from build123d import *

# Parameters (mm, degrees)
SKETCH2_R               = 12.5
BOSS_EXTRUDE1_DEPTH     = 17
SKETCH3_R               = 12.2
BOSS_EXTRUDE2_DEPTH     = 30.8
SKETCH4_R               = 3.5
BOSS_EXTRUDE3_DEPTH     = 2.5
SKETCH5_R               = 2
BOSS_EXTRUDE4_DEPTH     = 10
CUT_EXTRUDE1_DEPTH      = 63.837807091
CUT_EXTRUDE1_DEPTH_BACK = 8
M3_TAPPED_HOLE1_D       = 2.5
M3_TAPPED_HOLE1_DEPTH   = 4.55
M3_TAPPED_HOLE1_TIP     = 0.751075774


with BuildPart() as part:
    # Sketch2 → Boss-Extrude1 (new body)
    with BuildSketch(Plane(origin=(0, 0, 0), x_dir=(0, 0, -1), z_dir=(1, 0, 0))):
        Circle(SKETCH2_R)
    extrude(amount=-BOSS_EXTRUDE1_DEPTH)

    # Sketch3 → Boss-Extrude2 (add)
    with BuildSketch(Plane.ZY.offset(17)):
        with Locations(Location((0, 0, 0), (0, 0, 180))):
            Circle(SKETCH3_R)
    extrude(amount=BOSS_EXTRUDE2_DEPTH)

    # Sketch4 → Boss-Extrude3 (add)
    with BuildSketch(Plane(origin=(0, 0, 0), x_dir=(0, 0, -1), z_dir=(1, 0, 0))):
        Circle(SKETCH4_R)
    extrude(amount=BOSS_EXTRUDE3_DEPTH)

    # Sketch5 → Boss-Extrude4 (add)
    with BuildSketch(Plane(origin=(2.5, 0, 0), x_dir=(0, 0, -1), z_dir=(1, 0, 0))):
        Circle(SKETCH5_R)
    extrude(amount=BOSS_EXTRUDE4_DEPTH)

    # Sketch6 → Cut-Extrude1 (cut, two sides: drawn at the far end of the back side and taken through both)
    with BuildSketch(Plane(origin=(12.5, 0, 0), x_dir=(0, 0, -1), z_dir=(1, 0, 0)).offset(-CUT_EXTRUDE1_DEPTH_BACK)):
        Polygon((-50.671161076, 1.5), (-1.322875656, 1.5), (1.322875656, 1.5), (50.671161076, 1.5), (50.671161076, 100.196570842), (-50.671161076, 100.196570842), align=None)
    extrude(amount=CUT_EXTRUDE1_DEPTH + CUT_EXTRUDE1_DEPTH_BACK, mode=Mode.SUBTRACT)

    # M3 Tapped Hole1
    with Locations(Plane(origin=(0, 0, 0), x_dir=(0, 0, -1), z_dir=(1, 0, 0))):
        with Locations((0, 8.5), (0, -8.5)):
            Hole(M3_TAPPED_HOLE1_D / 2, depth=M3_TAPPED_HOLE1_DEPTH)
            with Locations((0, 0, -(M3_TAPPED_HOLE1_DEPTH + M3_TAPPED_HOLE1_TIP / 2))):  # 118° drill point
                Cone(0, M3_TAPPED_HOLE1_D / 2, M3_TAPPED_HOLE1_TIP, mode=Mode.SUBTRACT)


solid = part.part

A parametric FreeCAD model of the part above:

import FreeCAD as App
import Part
import Sketcher

doc = App.newDocument("Part")
body = doc.addObject("PartDesign::Body", "Body")

sketch1 = body.newObject("Sketcher::SketchObject", "Sketch")
sketch1.AttachmentSupport = (doc.getObject("YZ_Plane"), [""])
sketch1.MapMode = "FlatFace"
sketch1.addGeometry(Part.Circle(App.Vector(0, 0, 0), App.Vector(0, 0, 1), 12.5), False)
sketch1.addConstraint([
    Sketcher.Constraint("Coincident", 0, 3, -1, 1),
    Sketcher.Constraint("Diameter", 0, 25.0),
])
pad1 = body.newObject("PartDesign::Pad", "Pad")
pad1.Profile = sketch1
pad1.Length = 17
pad1.Reversed = True

sketch2 = body.newObject("Sketcher::SketchObject", "Sketch001")
sketch2.AttachmentSupport = (doc.getObject("YZ_Plane"), [""])
sketch2.MapMode = "FlatFace"
sketch2.AttachmentOffset = App.Placement(App.Vector(0, 0, -17), App.Rotation())
sketch2.addGeometry(Part.Circle(App.Vector(0, 0, 0), App.Vector(0, 0, 1), 12.2), False)
sketch2.addConstraint([
    Sketcher.Constraint("Coincident", 0, 3, -1, 1),
    Sketcher.Constraint("Diameter", 0, 24.4),
])
pad2 = body.newObject("PartDesign::Pad", "Pad001")
pad2.Profile = sketch2
pad2.Length = 30.8
pad2.Reversed = True

sketch3 = body.newObject("Sketcher::SketchObject", "Sketch002")
sketch3.AttachmentSupport = (doc.getObject("YZ_Plane"), [""])
sketch3.MapMode = "FlatFace"
sketch3.addGeometry(Part.Circle(App.Vector(0, 0, 0), App.Vector(0, 0, 1), 3.5), False)
sketch3.addConstraint([
    Sketcher.Constraint("Coincident", 0, 3, -1, 1),
    Sketcher.Constraint("Diameter", 0, 7.0),
])
pad3 = body.newObject("PartDesign::Pad", "Pad002")
pad3.Profile = sketch3
pad3.Length = 2.5

sketch4 = body.newObject("Sketcher::SketchObject", "Sketch003")
sketch4.AttachmentSupport = (doc.getObject("YZ_Plane"), [""])
sketch4.MapMode = "FlatFace"
sketch4.AttachmentOffset = App.Placement(App.Vector(0, 0, 2.5), App.Rotation())
sketch4.addGeometry(Part.Circle(App.Vector(0, 0, 0), App.Vector(0, 0, 1), 2), False)
sketch4.addConstraint([
    Sketcher.Constraint("Coincident", 0, 3, -1, 1),
    Sketcher.Constraint("Diameter", 0, 4.0),
])
pad4 = body.newObject("PartDesign::Pad", "Pad003")
pad4.Profile = sketch4
pad4.Length = 10

sketch5 = body.newObject("Sketcher::SketchObject", "Sketch004")
sketch5.AttachmentSupport = (doc.getObject("YZ_Plane"), [""])
sketch5.MapMode = "FlatFace"
sketch5.AttachmentOffset = App.Placement(App.Vector(0, 0, 12.5), App.Rotation())
sketch5.addGeometry([
    Part.LineSegment(App.Vector(1.5, 50.671161, 0), App.Vector(1.5, -50.671161, 0)),
    Part.LineSegment(App.Vector(1.5, -50.671161, 0), App.Vector(100.196571, -50.671161, 0)),
    Part.LineSegment(App.Vector(100.196571, -50.671161, 0), App.Vector(100.196571, 50.671161, 0)),
    Part.LineSegment(App.Vector(100.196571, 50.671161, 0), App.Vector(1.5, 50.671161, 0)),
], False)
sketch5.addConstraint([
    Sketcher.Constraint("Coincident", 0, 2, 1, 1),
    Sketcher.Constraint("Coincident", 1, 2, 2, 1),
    Sketcher.Constraint("Coincident", 2, 2, 3, 1),
    Sketcher.Constraint("Coincident", 3, 2, 0, 1),
    Sketcher.Constraint("Vertical", 0),
    Sketcher.Constraint("Horizontal", 1),
    Sketcher.Constraint("Vertical", 2),
    Sketcher.Constraint("Horizontal", 3),
    Sketcher.Constraint("DistanceX", -1, 1, 0, 2, 1.5),
    Sketcher.Constraint("DistanceX", 1, 1, 1, 2, 98.696571),
    Sketcher.Constraint("DistanceY", 0, 2, 0, 1, 101.342322),
    Sketcher.Constraint("DistanceY", 0, 2, -1, 1, 50.671161),
])
pocket1 = body.newObject("PartDesign::Pocket", "Pocket")
pocket1.Profile = sketch5
pocket1.Type = "TwoLengths"
pocket1.Length = 63.837807
pocket1.Length2 = 8
pocket1.Reversed = True

sketch6 = body.newObject("Sketcher::SketchObject", "Sketch005")
sketch6.AttachmentSupport = (doc.getObject("YZ_Plane"), [""])
sketch6.MapMode = "FlatFace"
sketch6.addGeometry([
    Part.Circle(App.Vector(8.5, 0, 0), App.Vector(0, 0, 1), 1.25),
    Part.Circle(App.Vector(-8.5, 0, 0), App.Vector(0, 0, 1), 1.25),
], False)
sketch6.addConstraint([
    Sketcher.Constraint("Equal", 0, 1),
    Sketcher.Constraint("Symmetric", 0, 3, 1, 3, -1, 1),
    Sketcher.Constraint("PointOnObject", 0, 3, -1),
    Sketcher.Constraint("Diameter", 0, 2.5),
    Sketcher.Constraint("DistanceX", 1, 3, 0, 3, 17.0),
])
doc.recompute()
hole = body.newObject("PartDesign::Hole", "Hole")
hole.Profile = sketch6
hole.ThreadType = "None"
hole.Diameter = 2.5
hole.DepthType = "Dimension"
hole.Depth = 4.55
hole.DrillPoint = "Angled"
hole.DrillPointAngle = 118

doc.recompute()
